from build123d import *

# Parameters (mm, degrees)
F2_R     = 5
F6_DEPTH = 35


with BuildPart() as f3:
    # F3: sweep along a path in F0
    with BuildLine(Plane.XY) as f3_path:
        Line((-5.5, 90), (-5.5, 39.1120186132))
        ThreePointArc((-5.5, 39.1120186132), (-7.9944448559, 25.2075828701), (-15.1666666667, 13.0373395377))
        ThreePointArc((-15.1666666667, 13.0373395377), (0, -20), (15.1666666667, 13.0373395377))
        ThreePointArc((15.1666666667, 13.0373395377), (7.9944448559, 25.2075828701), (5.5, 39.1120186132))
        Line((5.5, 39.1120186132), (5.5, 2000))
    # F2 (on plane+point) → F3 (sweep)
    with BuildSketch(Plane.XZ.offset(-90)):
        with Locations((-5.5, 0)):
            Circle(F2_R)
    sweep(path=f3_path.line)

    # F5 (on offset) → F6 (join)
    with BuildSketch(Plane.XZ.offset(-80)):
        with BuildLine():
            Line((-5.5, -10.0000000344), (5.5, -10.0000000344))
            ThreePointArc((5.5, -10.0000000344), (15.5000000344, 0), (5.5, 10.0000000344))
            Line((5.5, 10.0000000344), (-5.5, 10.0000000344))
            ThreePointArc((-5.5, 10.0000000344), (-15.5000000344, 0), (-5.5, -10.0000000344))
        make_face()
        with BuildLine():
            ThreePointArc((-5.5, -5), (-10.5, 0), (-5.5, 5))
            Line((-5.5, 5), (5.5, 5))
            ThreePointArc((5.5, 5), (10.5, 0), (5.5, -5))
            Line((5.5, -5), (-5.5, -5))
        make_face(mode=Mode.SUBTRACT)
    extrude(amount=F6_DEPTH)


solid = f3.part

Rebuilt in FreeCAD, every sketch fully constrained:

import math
import FreeCAD as App
import Part
import Sketcher
from FreeCAD import Vector
Q = App.Units.Quantity

doc = App.newDocument("Part")
params = doc.addObject("Spreadsheet::Sheet", "Params")
for row, (alias, value) in enumerate([
    ("sketch1_diameter", "10 mm"),
    ("sketch2_radius", "40 mm"),
    ("sketch2_radius2", "20 mm"),
    ("sketch3_radius", "10 mm"),
    ("sketch3_radius2", "5 mm"),
    ("sketch3_width", "11 mm"),
    ("pad1_length", "35 mm"),
], start=1):
    params.set(f"A{row}", alias)
    params.set(f"B{row}", "=" + value)
    params.setAlias(f"B{row}", alias)

body = doc.addObject("PartDesign::Body", "Body")

sketch1 = doc.addObject("Sketcher::SketchObject", "Sketch")
body.addObject(sketch1)
sketch1.AttachmentSupport = (doc.XZ_Plane, [""])
sketch1.MapMode = "FlatFace"
sketch1.AttachmentOffset = App.Placement(Vector(0, 0, -90), App.Rotation())
sketch1.addGeometry(Part.Circle(Vector(-5.5, 0, 0), Vector(0, 0, 1), 5), False)
sketch1.addConstraint(Sketcher.Constraint("PointOnObject", 0, 3, -1))
sketch1.addConstraint(Sketcher.Constraint("Diameter", 0, Q("10 mm")))
sketch1.addConstraint(Sketcher.Constraint("DistanceX", 0, 3, -1, 1, Q("5.5 mm")))
sketch1.setExpression("Constraints[1]", "Params.sketch1_diameter")

sketch2 = doc.addObject("Sketcher::SketchObject", "Sketch001")
body.addObject(sketch2)
sketch2.AttachmentSupport = (doc.XY_Plane, [""])
sketch2.MapMode = "FlatFace"
sketch2.addGeometry(Part.LineSegment(Vector(-5.5, 90, 0), Vector(-5.5, 39.112019, 0)), False)
sketch2.addGeometry(Part.ArcOfCircle(Part.Circle(Vector(-45.5, 39.112019, 0), Vector(0, 0, 1), 40), math.radians(-40.682512), math.radians(0)), False)
sketch2.addGeometry(Part.ArcOfCircle(Part.Circle(Vector(0, 0, 0), Vector(0, 0, 1), 20), math.radians(139.317488), math.radians(400.682512)), False)
sketch2.addGeometry(Part.ArcOfCircle(Part.Circle(Vector(45.5, 39.112019, 0), Vector(0, 0, 1), 40), math.radians(180), math.radians(220.682512)), False)
sketch2.addGeometry(Part.LineSegment(Vector(5.5, 39.112019, 0), Vector(5.5, 2000, 0)), False)
sketch2.addConstraint(Sketcher.Constraint("Tangent", 0, 2, 1, 2))
sketch2.addConstraint(Sketcher.Constraint("Tangent", 1, 1, 2, 1))
sketch2.addConstraint(Sketcher.Constraint("Tangent", 2, 2, 3, 2))
sketch2.addConstraint(Sketcher.Constraint("Tangent", 3, 1, 4, 1))
sketch2.addConstraint(Sketcher.Constraint("Vertical", 0))
sketch2.addConstraint(Sketcher.Constraint("Vertical", 4))
sketch2.addConstraint(Sketcher.Constraint("Coincident", 2, 3, -1, 1))
sketch2.addConstraint(Sketcher.Constraint("Equal", 1, 3))
sketch2.addConstraint(Sketcher.Constraint("Horizontal", 1, 3, 3, 3))
sketch2.addConstraint(Sketcher.Constraint("Radius", 1, Q("40 mm")))
sketch2.addConstraint(Sketcher.Constraint("Radius", 2, Q("20 mm")))
sketch2.addConstraint(Sketcher.Constraint("DistanceY", -1, 1, 0, 1, Q("90 mm")))
sketch2.addConstraint(Sketcher.Constraint("DistanceY", -1, 1, 4, 2, Q("2000 mm")))
sketch2.addConstraint(Sketcher.Constraint("DistanceX", 1, 3, 3, 3, Q("91 mm")))
sketch2.setExpression("Constraints[9]", "Params.sketch2_radius")
sketch2.setExpression("Constraints[10]", "Params.sketch2_radius2")
doc.recompute()

additivepipe = doc.addObject("PartDesign::AdditivePipe", "AdditivePipe")
body.addObject(additivepipe)
additivepipe.Profile = sketch1
additivepipe.Spine = (sketch2, ["Edge1", "Edge2", "Edge3", "Edge4", "Edge5"])

sketch3 = doc.addObject("Sketcher::SketchObject", "Sketch002")
body.addObject(sketch3)
sketch3.AttachmentSupport = (doc.XZ_Plane, [""])
sketch3.MapMode = "FlatFace"
sketch3.AttachmentOffset = App.Placement(Vector(0, 0, -80), App.Rotation())
sketch3.addGeometry(Part.LineSegment(Vector(-5.5, -10, 0), Vector(5.5, -10, 0)), False)
sketch3.addGeometry(Part.ArcOfCircle(Part.Circle(Vector(5.5, 0, 0), Vector(0, 0, 1), 10), math.radians(-90), math.radians(90)), False)
sketch3.addGeometry(Part.LineSegment(Vector(5.5, 10, 0), Vector(-5.5, 10, 0)), False)
sketch3.addGeometry(Part.ArcOfCircle(Part.Circle(Vector(-5.5, 0, 0), Vector(0, 0, 1), 10), math.radians(90), math.radians(270)), False)
sketch3.addGeometry(Part.LineSegment(Vector(5.5, -5, 0), Vector(-5.5, -5, 0)), False)
sketch3.addGeometry(Part.ArcOfCircle(Part.Circle(Vector(-5.5, 0, 0), Vector(0, 0, 1), 5), math.radians(90), math.radians(270)), False)
sketch3.addGeometry(Part.LineSegment(Vector(-5.5, 5, 0), Vector(5.5, 5, 0)), False)
sketch3.addGeometry(Part.ArcOfCircle(Part.Circle(Vector(5.5, 0, 0), Vector(0, 0, 1), 5), math.radians(-90), math.radians(90)), False)
sketch3.addConstraint(Sketcher.Constraint("Tangent", 0, 2, 1, 1))
sketch3.addConstraint(Sketcher.Constraint("Tangent", 1, 2, 2, 1))
sketch3.addConstraint(Sketcher.Constraint("Tangent", 2, 2, 3, 1))
sketch3.addConstraint(Sketcher.Constraint("Tangent", 3, 2, 0, 1))
sketch3.addConstraint(Sketcher.Constraint("Tangent", 4, 2, 5, 2))
sketch3.addConstraint(Sketcher.Constraint("Tangent", 5, 1, 6, 1))
sketch3.addConstraint(Sketcher.Constraint("Tangent", 6, 2, 7, 2))
sketch3.addConstraint(Sketcher.Constraint("Tangent", 7, 1, 4, 1))
sketch3.addConstraint(Sketcher.Constraint("Horizontal", 0))
sketch3.addConstraint(Sketcher.Constraint("Horizontal", 2))
sketch3.addConstraint(Sketcher.Constraint("Horizontal", 4))
sketch3.addConstraint(Sketcher.Constraint("Horizontal", 6))
sketch3.addConstraint(Sketcher.Constraint("Coincident", 5, 3, 3, 3))
sketch3.addConstraint(Sketcher.Constraint("Symmetric", 1, 3, 3, 3, -1, 1))
sketch3.addConstraint(Sketcher.Constraint("Vertical", 7, 3, 0, 2))
sketch3.addConstraint(Sketcher.Constraint("Radius", 1, Q("10 mm")))
sketch3.addConstraint(Sketcher.Constraint("Radius", 5, Q("5 mm")))
sketch3.addConstraint(Sketcher.Constraint("DistanceX", 0, 1, 0, 2, Q("11 mm")))
sketch3.setExpression("Constraints[15]", "Params.sketch3_radius")
sketch3.setExpression("Constraints[16]", "Params.sketch3_radius2")
sketch3.setExpression("Constraints[17]", "Params.sketch3_width")
pad1 = doc.addObject("PartDesign::Pad", "Pad")
body.addObject(pad1)
pad1.Profile = sketch3
pad1.setExpression("Length", "Params.pad1_length")

doc.recompute()
